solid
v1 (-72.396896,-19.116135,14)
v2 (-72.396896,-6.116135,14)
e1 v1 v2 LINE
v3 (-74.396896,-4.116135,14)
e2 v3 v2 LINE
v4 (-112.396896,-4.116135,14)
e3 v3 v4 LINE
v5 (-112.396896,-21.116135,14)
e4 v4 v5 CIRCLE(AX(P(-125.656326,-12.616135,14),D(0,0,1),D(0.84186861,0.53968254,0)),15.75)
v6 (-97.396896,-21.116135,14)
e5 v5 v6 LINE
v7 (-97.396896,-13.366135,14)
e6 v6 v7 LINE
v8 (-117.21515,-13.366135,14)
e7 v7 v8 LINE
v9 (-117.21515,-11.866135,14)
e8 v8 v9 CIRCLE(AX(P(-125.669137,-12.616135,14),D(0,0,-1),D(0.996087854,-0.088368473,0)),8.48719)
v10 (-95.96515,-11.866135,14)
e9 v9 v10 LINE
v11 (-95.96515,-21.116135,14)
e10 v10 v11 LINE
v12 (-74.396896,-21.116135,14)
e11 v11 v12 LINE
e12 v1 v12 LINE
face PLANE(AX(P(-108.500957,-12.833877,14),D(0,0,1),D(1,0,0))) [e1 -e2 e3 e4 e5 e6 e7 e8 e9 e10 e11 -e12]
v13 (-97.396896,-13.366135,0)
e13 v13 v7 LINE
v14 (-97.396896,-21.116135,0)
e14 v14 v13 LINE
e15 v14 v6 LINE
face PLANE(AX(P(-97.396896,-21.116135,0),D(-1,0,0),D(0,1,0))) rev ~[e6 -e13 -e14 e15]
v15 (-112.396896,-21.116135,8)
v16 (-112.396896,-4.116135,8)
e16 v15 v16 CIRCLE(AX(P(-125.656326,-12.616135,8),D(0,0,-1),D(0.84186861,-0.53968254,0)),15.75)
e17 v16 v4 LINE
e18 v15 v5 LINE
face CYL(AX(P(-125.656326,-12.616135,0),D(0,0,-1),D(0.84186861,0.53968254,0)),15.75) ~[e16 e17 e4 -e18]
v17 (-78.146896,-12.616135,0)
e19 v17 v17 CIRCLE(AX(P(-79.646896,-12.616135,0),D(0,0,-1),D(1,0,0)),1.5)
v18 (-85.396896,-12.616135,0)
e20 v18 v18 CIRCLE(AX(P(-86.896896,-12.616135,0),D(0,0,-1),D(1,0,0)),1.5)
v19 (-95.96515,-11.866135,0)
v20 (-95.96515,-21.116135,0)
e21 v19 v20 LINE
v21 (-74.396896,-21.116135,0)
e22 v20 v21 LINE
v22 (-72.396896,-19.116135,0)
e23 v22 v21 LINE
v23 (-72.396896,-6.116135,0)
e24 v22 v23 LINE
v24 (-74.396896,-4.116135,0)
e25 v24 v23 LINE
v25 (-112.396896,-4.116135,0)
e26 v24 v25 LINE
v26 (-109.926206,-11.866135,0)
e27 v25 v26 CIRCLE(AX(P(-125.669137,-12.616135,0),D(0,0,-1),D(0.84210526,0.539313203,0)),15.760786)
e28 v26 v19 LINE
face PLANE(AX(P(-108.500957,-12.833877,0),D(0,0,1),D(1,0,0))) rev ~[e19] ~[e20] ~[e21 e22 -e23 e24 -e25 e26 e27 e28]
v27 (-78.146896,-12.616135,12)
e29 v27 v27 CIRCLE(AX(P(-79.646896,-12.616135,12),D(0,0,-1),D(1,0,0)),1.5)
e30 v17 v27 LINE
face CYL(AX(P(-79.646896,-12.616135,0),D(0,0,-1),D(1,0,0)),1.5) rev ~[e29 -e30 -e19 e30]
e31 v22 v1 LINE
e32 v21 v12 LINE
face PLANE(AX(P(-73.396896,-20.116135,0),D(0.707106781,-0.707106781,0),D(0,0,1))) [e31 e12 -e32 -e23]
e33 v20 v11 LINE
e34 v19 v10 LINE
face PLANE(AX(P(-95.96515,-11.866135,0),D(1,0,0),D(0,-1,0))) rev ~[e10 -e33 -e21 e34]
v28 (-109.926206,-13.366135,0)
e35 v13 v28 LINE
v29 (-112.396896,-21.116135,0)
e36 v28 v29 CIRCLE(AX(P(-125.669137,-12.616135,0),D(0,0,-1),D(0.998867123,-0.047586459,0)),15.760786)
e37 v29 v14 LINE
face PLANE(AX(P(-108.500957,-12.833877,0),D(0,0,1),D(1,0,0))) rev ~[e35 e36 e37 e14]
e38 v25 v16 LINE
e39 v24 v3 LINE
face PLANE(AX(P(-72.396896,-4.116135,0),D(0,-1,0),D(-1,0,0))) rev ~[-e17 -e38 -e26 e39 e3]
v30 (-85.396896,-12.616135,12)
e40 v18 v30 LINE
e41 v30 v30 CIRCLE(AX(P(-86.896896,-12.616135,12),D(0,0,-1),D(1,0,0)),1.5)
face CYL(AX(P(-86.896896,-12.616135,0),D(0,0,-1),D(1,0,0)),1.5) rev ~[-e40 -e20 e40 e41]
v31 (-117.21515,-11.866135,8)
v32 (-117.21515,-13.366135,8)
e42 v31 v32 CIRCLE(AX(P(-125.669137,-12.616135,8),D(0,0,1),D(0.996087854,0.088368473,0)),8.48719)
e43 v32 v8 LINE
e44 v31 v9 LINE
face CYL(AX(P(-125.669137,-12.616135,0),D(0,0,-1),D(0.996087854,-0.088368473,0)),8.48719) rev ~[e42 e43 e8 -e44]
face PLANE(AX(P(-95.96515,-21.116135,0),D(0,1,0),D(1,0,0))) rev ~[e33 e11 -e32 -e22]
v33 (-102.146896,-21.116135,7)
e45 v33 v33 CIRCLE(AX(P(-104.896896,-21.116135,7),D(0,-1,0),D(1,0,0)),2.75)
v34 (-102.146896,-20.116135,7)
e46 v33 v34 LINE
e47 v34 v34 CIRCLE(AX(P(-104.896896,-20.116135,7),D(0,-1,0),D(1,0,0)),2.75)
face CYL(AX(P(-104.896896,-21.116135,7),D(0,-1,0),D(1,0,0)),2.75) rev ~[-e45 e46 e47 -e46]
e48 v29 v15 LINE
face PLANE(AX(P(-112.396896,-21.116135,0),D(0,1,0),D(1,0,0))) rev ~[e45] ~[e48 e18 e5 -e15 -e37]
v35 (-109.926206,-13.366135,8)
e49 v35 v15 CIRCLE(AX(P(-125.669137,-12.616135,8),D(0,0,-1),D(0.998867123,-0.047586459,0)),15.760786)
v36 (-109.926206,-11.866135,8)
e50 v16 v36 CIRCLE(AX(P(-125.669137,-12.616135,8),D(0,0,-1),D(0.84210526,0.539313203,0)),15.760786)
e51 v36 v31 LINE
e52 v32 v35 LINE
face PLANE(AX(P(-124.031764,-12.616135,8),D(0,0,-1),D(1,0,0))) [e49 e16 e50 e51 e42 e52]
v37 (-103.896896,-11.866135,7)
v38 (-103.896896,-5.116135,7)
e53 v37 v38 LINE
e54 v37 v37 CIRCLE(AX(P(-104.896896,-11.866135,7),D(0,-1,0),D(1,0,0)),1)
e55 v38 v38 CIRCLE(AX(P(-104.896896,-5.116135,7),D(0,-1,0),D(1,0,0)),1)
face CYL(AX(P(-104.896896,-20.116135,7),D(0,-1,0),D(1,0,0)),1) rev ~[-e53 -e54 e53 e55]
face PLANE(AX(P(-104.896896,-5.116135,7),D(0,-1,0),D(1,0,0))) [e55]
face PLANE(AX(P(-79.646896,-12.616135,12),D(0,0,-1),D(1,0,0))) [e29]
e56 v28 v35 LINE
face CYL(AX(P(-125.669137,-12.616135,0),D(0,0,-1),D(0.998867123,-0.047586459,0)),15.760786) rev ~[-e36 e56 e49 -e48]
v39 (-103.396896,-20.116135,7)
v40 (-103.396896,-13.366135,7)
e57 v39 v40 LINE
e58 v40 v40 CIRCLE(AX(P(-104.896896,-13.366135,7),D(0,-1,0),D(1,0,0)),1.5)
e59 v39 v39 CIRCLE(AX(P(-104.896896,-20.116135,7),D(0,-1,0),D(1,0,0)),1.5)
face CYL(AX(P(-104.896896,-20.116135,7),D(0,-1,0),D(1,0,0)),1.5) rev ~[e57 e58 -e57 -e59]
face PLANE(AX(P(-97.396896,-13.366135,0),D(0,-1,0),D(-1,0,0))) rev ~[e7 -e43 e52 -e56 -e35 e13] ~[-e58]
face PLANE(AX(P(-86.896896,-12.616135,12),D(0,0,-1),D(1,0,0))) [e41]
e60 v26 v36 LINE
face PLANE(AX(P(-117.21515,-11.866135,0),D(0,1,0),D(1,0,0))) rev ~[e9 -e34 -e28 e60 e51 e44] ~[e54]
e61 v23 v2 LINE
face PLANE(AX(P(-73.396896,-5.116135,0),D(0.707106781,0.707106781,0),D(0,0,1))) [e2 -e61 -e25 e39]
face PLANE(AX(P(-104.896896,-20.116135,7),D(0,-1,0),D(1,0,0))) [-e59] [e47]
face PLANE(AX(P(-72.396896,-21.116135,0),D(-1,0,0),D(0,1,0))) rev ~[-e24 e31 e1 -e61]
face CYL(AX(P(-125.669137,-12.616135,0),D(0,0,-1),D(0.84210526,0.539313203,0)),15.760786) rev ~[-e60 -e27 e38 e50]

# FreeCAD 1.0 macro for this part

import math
import FreeCAD as App
import Part
import Sketcher
from FreeCAD import Vector


def edges_at(feature, points):
    """Names of the edges that pass closest to the given points."""
    edges = feature.Shape.Edges
    near = lambda p: min(range(len(edges)), key=lambda i: edges[i].distToShape(Part.Vertex(*p))[0])
    return sorted({f"Edge{near(p) + 1}" for p in points})

doc = App.newDocument("Part")
body = doc.addObject("PartDesign::Body", "Body")

sketch1 = body.newObject("Sketcher::SketchObject", "Sketch")
sketch1.AttachmentSupport = (doc.getObject("XY_Plane"), [""])
sketch1.MapMode = "FlatFace"
sketch1.addGeometry(Part.LineSegment(Vector(-72.4, -4.1, 0), Vector(-112.4, -4.1, 0)), False)
sketch1.addGeometry(Part.ArcOfCircle(Part.Circle(Vector(-125.7, -12.6, 0), Vector(0, 0, 1), 15.8), math.radians(33), math.radians(327)), False)
sketch1.addGeometry(Part.LineSegment(Vector(-112.4, -21.1, 0), Vector(-97.4, -21.1, 0)), False)
sketch1.addGeometry(Part.LineSegment(Vector(-97.4, -21.1, 0), Vector(-97.4, -13.4, 0)), False)
sketch1.addGeometry(Part.LineSegment(Vector(-97.4, -13.4, 0), Vector(-117.2, -13.4, 0)), False)
sketch1.addGeometry(Part.ArcOfCircle(Part.Circle(Vector(-125.7, -12.6, 0), Vector(0, 0, 1), 8.5), math.radians(5), math.radians(355)), False)
sketch1.addGeometry(Part.LineSegment(Vector(-117.2, -11.9, 0), Vector(-96, -11.9, 0)), False)
sketch1.addGeometry(Part.LineSegment(Vector(-96, -11.9, 0), Vector(-96, -21.1, 0)), False)
sketch1.addGeometry(Part.LineSegment(Vector(-96, -21.1, 0), Vector(-72.4, -21.1, 0)), False)
sketch1.addGeometry(Part.LineSegment(Vector(-72.4, -21.1, 0), Vector(-72.4, -4.1, 0)), False)
sketch1.addConstraint(Sketcher.Constraint("Coincident", 0, 2, 1, 1))
sketch1.addConstraint(Sketcher.Constraint("Coincident", 1, 2, 2, 1))
sketch1.addConstraint(Sketcher.Constraint("Coincident", 2, 2, 3, 1))
sketch1.addConstraint(Sketcher.Constraint("Coincident", 3, 2, 4, 1))
sketch1.addConstraint(Sketcher.Constraint("Coincident", 4, 2, 5, 2))
sketch1.addConstraint(Sketcher.Constraint("Coincident", 5, 1, 6, 1))
sketch1.addConstraint(Sketcher.Constraint("Coincident", 6, 2, 7, 1))
sketch1.addConstraint(Sketcher.Constraint("Coincident", 7, 2, 8, 1))
sketch1.addConstraint(Sketcher.Constraint("Coincident", 8, 2, 9, 1))
sketch1.addConstraint(Sketcher.Constraint("Coincident", 9, 2, 0, 1))
sketch1.addConstraint(Sketcher.Constraint("Horizontal", 0))
sketch1.addConstraint(Sketcher.Constraint("Horizontal", 2))
sketch1.addConstraint(Sketcher.Constraint("Vertical", 3))
sketch1.addConstraint(Sketcher.Constraint("Horizontal", 4))
sketch1.addConstraint(Sketcher.Constraint("Horizontal", 6))
sketch1.addConstraint(Sketcher.Constraint("Vertical", 7))
sketch1.addConstraint(Sketcher.Constraint("Horizontal", 8))
sketch1.addConstraint(Sketcher.Constraint("Vertical", 9))
sketch1.addConstraint(Sketcher.Constraint("Horizontal", 1, 3, 5, 3))
sketch1.addConstraint(Sketcher.Constraint("Horizontal", 2, 2, 7, 2))
sketch1.addConstraint(Sketcher.Constraint("Vertical", 0, 2, 1, 2))
sketch1.addConstraint(Sketcher.Constraint("Vertical", 4, 2, 5, 1))
sketch1.addConstraint(Sketcher.Constraint("DistanceX", 0, 2, 0, 1, 40.0))
sketch1.addConstraint(Sketcher.Constraint("DistanceX", 2, 1, 2, 2, 15.0))
sketch1.addConstraint(Sketcher.Constraint("DistanceY", 9, 1, 9, 2, 17.0))
sketch1.addConstraint(Sketcher.Constraint("Radius", 1, 15.75))
sketch1.addConstraint(Sketcher.Constraint("DistanceX", 6, 1, 6, 2, 21.25))
sketch1.addConstraint(Sketcher.Constraint("DistanceY", 3, 1, 3, 2, 7.75))
sketch1.addConstraint(Sketcher.Constraint("Radius", 5, 8.48719))
sketch1.addConstraint(Sketcher.Constraint("DistanceX", 4, 2, 4, 1, 19.818254))
sketch1.addConstraint(Sketcher.Constraint("DistanceX", 4, 2, -1, 1, 117.21515))
sketch1.addConstraint(Sketcher.Constraint("DistanceY", 1, 3, -1, 1, 12.616135))
pad1 = body.newObject("PartDesign::Pad", "Pad")
pad1.Profile = sketch1
pad1.Length = 14

sketch2 = body.newObject("Sketcher::SketchObject", "Sketch001")
sketch2.AttachmentSupport = (doc.getObject("XZ_Plane"), [""])
sketch2.MapMode = "FlatFace"
sketch2.AttachmentOffset = App.Placement(Vector(0, 0, 21.116135), App.Rotation())
sketch2.addGeometry(Part.Circle(Vector(-104.9, 7, 0), Vector(0, 0, 1), 2.8), False)
sketch2.addConstraint(Sketcher.Constraint("Diameter", 0, 5.5))
sketch2.addConstraint(Sketcher.Constraint("DistanceY", -1, 1, 0, 3, 7.0))
sketch2.addConstraint(Sketcher.Constraint("DistanceX", 0, 3, -1, 1, 104.896896))
pocket1 = body.newObject("PartDesign::Pocket", "Pocket")
pocket1.Profile = sketch2
pocket1.Length = 1

sketch3 = body.newObject("Sketcher::SketchObject", "Sketch002")
sketch3.AttachmentSupport = (doc.getObject("XZ_Plane"), [""])
sketch3.MapMode = "FlatFace"
sketch3.AttachmentOffset = App.Placement(Vector(0, 0, 20.116135), App.Rotation())
sketch3.addGeometry(Part.Circle(Vector(-104.9, 7, 0), Vector(0, 0, 1), 1.5), False)
sketch3.addConstraint(Sketcher.Constraint("Diameter", 0, 3.0))
sketch3.addConstraint(Sketcher.Constraint("DistanceY", -1, 1, 0, 3, 7.0))
sketch3.addConstraint(Sketcher.Constraint("DistanceX", 0, 3, -1, 1, 104.896896))
pocket2 = body.newObject("PartDesign::Pocket", "Pocket001")
pocket2.Profile = sketch3
pocket2.Length = 6.75

sketch4 = body.newObject("Sketcher::SketchObject", "Sketch003")
sketch4.AttachmentSupport = (doc.getObject("XZ_Plane"), [""])
sketch4.MapMode = "FlatFace"
sketch4.AttachmentOffset = App.Placement(Vector(0, 0, 20.116135), App.Rotation())
sketch4.addGeometry(Part.Circle(Vector(-104.9, 7, 0), Vector(0, 0, 1), 1), False)
sketch4.addConstraint(Sketcher.Constraint("Diameter", 0, 2.0))
sketch4.addConstraint(Sketcher.Constraint("DistanceY", -1, 1, 0, 3, 7.0))
sketch4.addConstraint(Sketcher.Constraint("DistanceX", 0, 3, -1, 1, 104.896896))
pocket3 = body.newObject("PartDesign::Pocket", "Pocket002")
pocket3.Profile = sketch4
pocket3.Length = 15

sketch5 = body.newObject("Sketcher::SketchObject", "Sketch004")
sketch5.AttachmentSupport = (doc.getObject("XY_Plane"), [""])
sketch5.MapMode = "FlatFace"
sketch5.addGeometry(Part.ArcOfCircle(Part.Circle(Vector(-125.669137, -12.616135, 0), Vector(0, 0, 1), 15.760786), math.radians(-32.636898), math.radians(-2.727533)), False)
sketch5.addGeometry(Part.ArcOfCircle(Part.Circle(Vector(-125.656326, -12.616135, 0), Vector(0, 0, 1), 15.75), math.radians(32.662031), math.radians(327.337969)), False)
sketch5.addGeometry(Part.ArcOfCircle(Part.Circle(Vector(-125.669137, -12.616135, 0), Vector(0, 0, 1), 15.760786), math.radians(2.727533), math.radians(32.636898)), False)
sketch5.addGeometry(Part.LineSegment(Vector(-109.926206, -11.866135, 0), Vector(-117.21515, -11.866135, 0)), False)
sketch5.addGeometry(Part.ArcOfCircle(Part.Circle(Vector(-125.669137, -12.616135, 0), Vector(0, 0, 1), 8.48719), math.radians(5.069753), math.radians(354.930247)), False)
sketch5.addGeometry(Part.LineSegment(Vector(-117.21515, -13.366135, 0), Vector(-109.926206, -13.366135, 0)), False)
sketch5.addConstraint(Sketcher.Constraint("Coincident", 0, 1, 1, 2))
sketch5.addConstraint(Sketcher.Constraint("Coincident", 1, 1, 2, 2))
sketch5.addConstraint(Sketcher.Constraint("Coincident", 2, 1, 3, 1))
sketch5.addConstraint(Sketcher.Constraint("Coincident", 3, 2, 4, 1))
sketch5.addConstraint(Sketcher.Constraint("Coincident", 4, 2, 5, 1))
sketch5.addConstraint(Sketcher.Constraint("Coincident", 5, 2, 0, 2))
sketch5.addConstraint(Sketcher.Constraint("Horizontal", 3))
sketch5.addConstraint(Sketcher.Constraint("Horizontal", 5))
sketch5.addConstraint(Sketcher.Constraint("Coincident", 2, 3, 0, 3))
sketch5.addConstraint(Sketcher.Constraint("Coincident", 4, 3, 0, 3))
sketch5.addConstraint(Sketcher.Constraint("Equal", 0, 2))
sketch5.addConstraint(Sketcher.Constraint("Horizontal", 0, 3, 1, 3))
sketch5.addConstraint(Sketcher.Constraint("Vertical", 3, 2, 4, 2))
sketch5.addConstraint(Sketcher.Constraint("Radius", 1, 15.75))
sketch5.addConstraint(Sketcher.Constraint("DistanceY", 0, 1, 1, 1, 17.0))
sketch5.addConstraint(Sketcher.Constraint("DistanceY", 4, 2, 3, 2, 1.5))
sketch5.addConstraint(Sketcher.Constraint("Radius", 4, 8.48719))
sketch5.addConstraint(Sketcher.Constraint("Radius", 0, 15.760786))
sketch5.addConstraint(Sketcher.Constraint("DistanceX", 3, 2, -1, 1, 117.21515))
sketch5.addConstraint(Sketcher.Constraint("DistanceY", 0, 3, -1, 1, 12.616135))
pocket4 = body.newObject("PartDesign::Pocket", "Pocket003")
pocket4.Profile = sketch5
pocket4.Length = 8
pocket4.Reversed = True

sketch6 = body.newObject("Sketcher::SketchObject", "Sketch005")
sketch6.AttachmentSupport = (doc.getObject("XY_Plane"), [""])
sketch6.MapMode = "FlatFace"
sketch6.addGeometry(Part.Circle(Vector(-79.6, -12.6, 0), Vector(0, 0, 1), 1.5), False)
sketch6.addGeometry(Part.Circle(Vector(-86.9, -12.6, 0), Vector(0, 0, 1), 1.5), False)
sketch6.addConstraint(Sketcher.Constraint("Equal", 0, 1))
sketch6.addConstraint(Sketcher.Constraint("Horizontal", 0, 3, 1, 3))
sketch6.addConstraint(Sketcher.Constraint("Diameter", 0, 3.0))
sketch6.addConstraint(Sketcher.Constraint("DistanceX", 1, 3, 0, 3, 7.25))
sketch6.addConstraint(Sketcher.Constraint("DistanceX", 0, 3, -1, 1, 79.646896))
sketch6.addConstraint(Sketcher.Constraint("DistanceY", 0, 3, -1, 1, 12.616135))
pocket5 = body.newObject("PartDesign::Pocket", "Pocket004")
pocket5.Profile = sketch6
pocket5.Length = 12
pocket5.Reversed = True
doc.recompute()

chamfer = body.newObject("PartDesign::Chamfer", "Chamfer")
chamfer.Base = (pocket5, edges_at(pocket5, [(-72.397, -4.116, 7), (-72.397, -21.116, 7)]))
chamfer.Size = 2

doc.recompute()
